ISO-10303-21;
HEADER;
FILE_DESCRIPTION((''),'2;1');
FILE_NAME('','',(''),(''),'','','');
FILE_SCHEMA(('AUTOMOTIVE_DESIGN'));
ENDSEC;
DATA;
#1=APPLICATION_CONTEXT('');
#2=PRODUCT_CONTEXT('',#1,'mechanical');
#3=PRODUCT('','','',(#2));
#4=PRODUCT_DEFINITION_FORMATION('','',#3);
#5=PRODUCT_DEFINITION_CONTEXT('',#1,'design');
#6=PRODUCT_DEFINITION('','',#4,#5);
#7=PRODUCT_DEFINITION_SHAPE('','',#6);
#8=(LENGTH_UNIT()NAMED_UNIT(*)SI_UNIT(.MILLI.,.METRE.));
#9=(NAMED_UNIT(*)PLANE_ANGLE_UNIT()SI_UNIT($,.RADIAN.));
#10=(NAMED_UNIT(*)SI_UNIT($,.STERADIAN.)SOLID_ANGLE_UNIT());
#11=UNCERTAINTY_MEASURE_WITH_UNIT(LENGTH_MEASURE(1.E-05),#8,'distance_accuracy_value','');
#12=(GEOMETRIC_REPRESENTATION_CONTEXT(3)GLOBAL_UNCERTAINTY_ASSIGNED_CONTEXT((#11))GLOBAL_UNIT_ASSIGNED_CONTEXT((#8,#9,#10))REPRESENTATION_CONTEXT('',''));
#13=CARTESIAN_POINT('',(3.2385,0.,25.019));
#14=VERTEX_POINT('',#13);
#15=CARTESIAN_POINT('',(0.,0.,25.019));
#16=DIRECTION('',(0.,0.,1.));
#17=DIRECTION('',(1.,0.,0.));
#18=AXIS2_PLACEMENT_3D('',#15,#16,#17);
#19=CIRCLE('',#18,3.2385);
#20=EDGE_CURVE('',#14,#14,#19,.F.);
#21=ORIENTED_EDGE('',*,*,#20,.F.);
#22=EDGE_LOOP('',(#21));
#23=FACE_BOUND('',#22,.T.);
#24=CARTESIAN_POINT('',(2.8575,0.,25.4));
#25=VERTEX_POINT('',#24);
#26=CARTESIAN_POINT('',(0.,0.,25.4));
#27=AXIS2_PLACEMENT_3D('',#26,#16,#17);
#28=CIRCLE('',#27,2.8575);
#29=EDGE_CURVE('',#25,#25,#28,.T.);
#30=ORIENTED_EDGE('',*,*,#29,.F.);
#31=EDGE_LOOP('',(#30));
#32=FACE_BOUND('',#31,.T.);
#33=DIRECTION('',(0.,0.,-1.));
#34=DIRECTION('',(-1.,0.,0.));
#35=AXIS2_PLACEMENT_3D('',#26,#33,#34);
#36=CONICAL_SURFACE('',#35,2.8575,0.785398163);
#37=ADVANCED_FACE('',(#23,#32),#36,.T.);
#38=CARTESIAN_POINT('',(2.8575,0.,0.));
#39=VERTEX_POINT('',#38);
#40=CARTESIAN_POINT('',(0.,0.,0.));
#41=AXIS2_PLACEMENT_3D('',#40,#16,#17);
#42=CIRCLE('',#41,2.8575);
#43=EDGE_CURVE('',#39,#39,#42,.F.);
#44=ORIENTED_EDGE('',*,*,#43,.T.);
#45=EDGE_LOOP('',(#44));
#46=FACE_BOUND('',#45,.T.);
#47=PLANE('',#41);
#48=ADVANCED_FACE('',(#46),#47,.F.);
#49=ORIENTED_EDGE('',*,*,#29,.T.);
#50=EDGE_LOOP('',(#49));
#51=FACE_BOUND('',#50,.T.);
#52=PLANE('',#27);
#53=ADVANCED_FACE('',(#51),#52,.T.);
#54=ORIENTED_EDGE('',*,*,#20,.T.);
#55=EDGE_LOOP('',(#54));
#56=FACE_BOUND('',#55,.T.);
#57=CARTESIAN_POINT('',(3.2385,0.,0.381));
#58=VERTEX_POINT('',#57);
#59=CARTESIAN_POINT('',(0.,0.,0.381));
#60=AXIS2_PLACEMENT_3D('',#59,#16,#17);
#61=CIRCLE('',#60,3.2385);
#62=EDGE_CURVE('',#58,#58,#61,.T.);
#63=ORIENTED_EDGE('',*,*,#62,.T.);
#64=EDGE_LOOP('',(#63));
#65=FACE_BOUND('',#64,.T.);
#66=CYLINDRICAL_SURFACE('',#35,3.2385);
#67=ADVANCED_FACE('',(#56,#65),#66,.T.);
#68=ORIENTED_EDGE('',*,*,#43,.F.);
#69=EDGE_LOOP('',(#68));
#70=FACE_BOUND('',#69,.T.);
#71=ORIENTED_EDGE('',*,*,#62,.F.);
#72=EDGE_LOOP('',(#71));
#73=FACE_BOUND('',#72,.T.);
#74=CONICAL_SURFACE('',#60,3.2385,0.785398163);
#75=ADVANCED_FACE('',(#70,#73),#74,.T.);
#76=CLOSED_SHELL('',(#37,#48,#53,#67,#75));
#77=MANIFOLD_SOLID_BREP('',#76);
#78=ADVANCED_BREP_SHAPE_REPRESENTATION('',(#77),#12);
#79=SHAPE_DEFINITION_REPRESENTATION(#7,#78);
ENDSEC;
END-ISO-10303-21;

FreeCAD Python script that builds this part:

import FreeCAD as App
import Part
import Sketcher
Q = App.Units.Quantity


def edges_at(feature, points):
    """Names of the edges that pass closest to the given points."""
    edges = feature.Shape.Edges
    near = lambda p: min(range(len(edges)), key=lambda i: edges[i].distToShape(Part.Vertex(*p))[0])
    return sorted({f"Edge{near(p) + 1}" for p in points})

doc = App.newDocument("Part")
body = doc.addObject("PartDesign::Body", "Body")

sketch1 = body.newObject("Sketcher::SketchObject", "Sketch")
sketch1.AttachmentSupport = (doc.getObject("XY_Plane"), [""])
sketch1.MapMode = "FlatFace"
sketch1.addGeometry(Part.Circle(App.Vector(0, 0, 0), App.Vector(0, 0, 1), 3.2), False)
sketch1.addConstraint([
    Sketcher.Constraint("Coincident", 0, 3, -1, 1),
    Sketcher.Constraint("Diameter", 0, Q("0.255 in")),
])
pad1 = body.newObject("PartDesign::Pad", "Pad")
pad1.Profile = sketch1
pad1.Length = Q("1 in")
doc.recompute()

chamfer = body.newObject("PartDesign::Chamfer", "Chamfer")
chamfer.Base = (pad1, edges_at(pad1, [(-3.239, 0, 0), (-3.239, 0, 25.4)]))
chamfer.Size = Q("0.015 in")

doc.recompute()
